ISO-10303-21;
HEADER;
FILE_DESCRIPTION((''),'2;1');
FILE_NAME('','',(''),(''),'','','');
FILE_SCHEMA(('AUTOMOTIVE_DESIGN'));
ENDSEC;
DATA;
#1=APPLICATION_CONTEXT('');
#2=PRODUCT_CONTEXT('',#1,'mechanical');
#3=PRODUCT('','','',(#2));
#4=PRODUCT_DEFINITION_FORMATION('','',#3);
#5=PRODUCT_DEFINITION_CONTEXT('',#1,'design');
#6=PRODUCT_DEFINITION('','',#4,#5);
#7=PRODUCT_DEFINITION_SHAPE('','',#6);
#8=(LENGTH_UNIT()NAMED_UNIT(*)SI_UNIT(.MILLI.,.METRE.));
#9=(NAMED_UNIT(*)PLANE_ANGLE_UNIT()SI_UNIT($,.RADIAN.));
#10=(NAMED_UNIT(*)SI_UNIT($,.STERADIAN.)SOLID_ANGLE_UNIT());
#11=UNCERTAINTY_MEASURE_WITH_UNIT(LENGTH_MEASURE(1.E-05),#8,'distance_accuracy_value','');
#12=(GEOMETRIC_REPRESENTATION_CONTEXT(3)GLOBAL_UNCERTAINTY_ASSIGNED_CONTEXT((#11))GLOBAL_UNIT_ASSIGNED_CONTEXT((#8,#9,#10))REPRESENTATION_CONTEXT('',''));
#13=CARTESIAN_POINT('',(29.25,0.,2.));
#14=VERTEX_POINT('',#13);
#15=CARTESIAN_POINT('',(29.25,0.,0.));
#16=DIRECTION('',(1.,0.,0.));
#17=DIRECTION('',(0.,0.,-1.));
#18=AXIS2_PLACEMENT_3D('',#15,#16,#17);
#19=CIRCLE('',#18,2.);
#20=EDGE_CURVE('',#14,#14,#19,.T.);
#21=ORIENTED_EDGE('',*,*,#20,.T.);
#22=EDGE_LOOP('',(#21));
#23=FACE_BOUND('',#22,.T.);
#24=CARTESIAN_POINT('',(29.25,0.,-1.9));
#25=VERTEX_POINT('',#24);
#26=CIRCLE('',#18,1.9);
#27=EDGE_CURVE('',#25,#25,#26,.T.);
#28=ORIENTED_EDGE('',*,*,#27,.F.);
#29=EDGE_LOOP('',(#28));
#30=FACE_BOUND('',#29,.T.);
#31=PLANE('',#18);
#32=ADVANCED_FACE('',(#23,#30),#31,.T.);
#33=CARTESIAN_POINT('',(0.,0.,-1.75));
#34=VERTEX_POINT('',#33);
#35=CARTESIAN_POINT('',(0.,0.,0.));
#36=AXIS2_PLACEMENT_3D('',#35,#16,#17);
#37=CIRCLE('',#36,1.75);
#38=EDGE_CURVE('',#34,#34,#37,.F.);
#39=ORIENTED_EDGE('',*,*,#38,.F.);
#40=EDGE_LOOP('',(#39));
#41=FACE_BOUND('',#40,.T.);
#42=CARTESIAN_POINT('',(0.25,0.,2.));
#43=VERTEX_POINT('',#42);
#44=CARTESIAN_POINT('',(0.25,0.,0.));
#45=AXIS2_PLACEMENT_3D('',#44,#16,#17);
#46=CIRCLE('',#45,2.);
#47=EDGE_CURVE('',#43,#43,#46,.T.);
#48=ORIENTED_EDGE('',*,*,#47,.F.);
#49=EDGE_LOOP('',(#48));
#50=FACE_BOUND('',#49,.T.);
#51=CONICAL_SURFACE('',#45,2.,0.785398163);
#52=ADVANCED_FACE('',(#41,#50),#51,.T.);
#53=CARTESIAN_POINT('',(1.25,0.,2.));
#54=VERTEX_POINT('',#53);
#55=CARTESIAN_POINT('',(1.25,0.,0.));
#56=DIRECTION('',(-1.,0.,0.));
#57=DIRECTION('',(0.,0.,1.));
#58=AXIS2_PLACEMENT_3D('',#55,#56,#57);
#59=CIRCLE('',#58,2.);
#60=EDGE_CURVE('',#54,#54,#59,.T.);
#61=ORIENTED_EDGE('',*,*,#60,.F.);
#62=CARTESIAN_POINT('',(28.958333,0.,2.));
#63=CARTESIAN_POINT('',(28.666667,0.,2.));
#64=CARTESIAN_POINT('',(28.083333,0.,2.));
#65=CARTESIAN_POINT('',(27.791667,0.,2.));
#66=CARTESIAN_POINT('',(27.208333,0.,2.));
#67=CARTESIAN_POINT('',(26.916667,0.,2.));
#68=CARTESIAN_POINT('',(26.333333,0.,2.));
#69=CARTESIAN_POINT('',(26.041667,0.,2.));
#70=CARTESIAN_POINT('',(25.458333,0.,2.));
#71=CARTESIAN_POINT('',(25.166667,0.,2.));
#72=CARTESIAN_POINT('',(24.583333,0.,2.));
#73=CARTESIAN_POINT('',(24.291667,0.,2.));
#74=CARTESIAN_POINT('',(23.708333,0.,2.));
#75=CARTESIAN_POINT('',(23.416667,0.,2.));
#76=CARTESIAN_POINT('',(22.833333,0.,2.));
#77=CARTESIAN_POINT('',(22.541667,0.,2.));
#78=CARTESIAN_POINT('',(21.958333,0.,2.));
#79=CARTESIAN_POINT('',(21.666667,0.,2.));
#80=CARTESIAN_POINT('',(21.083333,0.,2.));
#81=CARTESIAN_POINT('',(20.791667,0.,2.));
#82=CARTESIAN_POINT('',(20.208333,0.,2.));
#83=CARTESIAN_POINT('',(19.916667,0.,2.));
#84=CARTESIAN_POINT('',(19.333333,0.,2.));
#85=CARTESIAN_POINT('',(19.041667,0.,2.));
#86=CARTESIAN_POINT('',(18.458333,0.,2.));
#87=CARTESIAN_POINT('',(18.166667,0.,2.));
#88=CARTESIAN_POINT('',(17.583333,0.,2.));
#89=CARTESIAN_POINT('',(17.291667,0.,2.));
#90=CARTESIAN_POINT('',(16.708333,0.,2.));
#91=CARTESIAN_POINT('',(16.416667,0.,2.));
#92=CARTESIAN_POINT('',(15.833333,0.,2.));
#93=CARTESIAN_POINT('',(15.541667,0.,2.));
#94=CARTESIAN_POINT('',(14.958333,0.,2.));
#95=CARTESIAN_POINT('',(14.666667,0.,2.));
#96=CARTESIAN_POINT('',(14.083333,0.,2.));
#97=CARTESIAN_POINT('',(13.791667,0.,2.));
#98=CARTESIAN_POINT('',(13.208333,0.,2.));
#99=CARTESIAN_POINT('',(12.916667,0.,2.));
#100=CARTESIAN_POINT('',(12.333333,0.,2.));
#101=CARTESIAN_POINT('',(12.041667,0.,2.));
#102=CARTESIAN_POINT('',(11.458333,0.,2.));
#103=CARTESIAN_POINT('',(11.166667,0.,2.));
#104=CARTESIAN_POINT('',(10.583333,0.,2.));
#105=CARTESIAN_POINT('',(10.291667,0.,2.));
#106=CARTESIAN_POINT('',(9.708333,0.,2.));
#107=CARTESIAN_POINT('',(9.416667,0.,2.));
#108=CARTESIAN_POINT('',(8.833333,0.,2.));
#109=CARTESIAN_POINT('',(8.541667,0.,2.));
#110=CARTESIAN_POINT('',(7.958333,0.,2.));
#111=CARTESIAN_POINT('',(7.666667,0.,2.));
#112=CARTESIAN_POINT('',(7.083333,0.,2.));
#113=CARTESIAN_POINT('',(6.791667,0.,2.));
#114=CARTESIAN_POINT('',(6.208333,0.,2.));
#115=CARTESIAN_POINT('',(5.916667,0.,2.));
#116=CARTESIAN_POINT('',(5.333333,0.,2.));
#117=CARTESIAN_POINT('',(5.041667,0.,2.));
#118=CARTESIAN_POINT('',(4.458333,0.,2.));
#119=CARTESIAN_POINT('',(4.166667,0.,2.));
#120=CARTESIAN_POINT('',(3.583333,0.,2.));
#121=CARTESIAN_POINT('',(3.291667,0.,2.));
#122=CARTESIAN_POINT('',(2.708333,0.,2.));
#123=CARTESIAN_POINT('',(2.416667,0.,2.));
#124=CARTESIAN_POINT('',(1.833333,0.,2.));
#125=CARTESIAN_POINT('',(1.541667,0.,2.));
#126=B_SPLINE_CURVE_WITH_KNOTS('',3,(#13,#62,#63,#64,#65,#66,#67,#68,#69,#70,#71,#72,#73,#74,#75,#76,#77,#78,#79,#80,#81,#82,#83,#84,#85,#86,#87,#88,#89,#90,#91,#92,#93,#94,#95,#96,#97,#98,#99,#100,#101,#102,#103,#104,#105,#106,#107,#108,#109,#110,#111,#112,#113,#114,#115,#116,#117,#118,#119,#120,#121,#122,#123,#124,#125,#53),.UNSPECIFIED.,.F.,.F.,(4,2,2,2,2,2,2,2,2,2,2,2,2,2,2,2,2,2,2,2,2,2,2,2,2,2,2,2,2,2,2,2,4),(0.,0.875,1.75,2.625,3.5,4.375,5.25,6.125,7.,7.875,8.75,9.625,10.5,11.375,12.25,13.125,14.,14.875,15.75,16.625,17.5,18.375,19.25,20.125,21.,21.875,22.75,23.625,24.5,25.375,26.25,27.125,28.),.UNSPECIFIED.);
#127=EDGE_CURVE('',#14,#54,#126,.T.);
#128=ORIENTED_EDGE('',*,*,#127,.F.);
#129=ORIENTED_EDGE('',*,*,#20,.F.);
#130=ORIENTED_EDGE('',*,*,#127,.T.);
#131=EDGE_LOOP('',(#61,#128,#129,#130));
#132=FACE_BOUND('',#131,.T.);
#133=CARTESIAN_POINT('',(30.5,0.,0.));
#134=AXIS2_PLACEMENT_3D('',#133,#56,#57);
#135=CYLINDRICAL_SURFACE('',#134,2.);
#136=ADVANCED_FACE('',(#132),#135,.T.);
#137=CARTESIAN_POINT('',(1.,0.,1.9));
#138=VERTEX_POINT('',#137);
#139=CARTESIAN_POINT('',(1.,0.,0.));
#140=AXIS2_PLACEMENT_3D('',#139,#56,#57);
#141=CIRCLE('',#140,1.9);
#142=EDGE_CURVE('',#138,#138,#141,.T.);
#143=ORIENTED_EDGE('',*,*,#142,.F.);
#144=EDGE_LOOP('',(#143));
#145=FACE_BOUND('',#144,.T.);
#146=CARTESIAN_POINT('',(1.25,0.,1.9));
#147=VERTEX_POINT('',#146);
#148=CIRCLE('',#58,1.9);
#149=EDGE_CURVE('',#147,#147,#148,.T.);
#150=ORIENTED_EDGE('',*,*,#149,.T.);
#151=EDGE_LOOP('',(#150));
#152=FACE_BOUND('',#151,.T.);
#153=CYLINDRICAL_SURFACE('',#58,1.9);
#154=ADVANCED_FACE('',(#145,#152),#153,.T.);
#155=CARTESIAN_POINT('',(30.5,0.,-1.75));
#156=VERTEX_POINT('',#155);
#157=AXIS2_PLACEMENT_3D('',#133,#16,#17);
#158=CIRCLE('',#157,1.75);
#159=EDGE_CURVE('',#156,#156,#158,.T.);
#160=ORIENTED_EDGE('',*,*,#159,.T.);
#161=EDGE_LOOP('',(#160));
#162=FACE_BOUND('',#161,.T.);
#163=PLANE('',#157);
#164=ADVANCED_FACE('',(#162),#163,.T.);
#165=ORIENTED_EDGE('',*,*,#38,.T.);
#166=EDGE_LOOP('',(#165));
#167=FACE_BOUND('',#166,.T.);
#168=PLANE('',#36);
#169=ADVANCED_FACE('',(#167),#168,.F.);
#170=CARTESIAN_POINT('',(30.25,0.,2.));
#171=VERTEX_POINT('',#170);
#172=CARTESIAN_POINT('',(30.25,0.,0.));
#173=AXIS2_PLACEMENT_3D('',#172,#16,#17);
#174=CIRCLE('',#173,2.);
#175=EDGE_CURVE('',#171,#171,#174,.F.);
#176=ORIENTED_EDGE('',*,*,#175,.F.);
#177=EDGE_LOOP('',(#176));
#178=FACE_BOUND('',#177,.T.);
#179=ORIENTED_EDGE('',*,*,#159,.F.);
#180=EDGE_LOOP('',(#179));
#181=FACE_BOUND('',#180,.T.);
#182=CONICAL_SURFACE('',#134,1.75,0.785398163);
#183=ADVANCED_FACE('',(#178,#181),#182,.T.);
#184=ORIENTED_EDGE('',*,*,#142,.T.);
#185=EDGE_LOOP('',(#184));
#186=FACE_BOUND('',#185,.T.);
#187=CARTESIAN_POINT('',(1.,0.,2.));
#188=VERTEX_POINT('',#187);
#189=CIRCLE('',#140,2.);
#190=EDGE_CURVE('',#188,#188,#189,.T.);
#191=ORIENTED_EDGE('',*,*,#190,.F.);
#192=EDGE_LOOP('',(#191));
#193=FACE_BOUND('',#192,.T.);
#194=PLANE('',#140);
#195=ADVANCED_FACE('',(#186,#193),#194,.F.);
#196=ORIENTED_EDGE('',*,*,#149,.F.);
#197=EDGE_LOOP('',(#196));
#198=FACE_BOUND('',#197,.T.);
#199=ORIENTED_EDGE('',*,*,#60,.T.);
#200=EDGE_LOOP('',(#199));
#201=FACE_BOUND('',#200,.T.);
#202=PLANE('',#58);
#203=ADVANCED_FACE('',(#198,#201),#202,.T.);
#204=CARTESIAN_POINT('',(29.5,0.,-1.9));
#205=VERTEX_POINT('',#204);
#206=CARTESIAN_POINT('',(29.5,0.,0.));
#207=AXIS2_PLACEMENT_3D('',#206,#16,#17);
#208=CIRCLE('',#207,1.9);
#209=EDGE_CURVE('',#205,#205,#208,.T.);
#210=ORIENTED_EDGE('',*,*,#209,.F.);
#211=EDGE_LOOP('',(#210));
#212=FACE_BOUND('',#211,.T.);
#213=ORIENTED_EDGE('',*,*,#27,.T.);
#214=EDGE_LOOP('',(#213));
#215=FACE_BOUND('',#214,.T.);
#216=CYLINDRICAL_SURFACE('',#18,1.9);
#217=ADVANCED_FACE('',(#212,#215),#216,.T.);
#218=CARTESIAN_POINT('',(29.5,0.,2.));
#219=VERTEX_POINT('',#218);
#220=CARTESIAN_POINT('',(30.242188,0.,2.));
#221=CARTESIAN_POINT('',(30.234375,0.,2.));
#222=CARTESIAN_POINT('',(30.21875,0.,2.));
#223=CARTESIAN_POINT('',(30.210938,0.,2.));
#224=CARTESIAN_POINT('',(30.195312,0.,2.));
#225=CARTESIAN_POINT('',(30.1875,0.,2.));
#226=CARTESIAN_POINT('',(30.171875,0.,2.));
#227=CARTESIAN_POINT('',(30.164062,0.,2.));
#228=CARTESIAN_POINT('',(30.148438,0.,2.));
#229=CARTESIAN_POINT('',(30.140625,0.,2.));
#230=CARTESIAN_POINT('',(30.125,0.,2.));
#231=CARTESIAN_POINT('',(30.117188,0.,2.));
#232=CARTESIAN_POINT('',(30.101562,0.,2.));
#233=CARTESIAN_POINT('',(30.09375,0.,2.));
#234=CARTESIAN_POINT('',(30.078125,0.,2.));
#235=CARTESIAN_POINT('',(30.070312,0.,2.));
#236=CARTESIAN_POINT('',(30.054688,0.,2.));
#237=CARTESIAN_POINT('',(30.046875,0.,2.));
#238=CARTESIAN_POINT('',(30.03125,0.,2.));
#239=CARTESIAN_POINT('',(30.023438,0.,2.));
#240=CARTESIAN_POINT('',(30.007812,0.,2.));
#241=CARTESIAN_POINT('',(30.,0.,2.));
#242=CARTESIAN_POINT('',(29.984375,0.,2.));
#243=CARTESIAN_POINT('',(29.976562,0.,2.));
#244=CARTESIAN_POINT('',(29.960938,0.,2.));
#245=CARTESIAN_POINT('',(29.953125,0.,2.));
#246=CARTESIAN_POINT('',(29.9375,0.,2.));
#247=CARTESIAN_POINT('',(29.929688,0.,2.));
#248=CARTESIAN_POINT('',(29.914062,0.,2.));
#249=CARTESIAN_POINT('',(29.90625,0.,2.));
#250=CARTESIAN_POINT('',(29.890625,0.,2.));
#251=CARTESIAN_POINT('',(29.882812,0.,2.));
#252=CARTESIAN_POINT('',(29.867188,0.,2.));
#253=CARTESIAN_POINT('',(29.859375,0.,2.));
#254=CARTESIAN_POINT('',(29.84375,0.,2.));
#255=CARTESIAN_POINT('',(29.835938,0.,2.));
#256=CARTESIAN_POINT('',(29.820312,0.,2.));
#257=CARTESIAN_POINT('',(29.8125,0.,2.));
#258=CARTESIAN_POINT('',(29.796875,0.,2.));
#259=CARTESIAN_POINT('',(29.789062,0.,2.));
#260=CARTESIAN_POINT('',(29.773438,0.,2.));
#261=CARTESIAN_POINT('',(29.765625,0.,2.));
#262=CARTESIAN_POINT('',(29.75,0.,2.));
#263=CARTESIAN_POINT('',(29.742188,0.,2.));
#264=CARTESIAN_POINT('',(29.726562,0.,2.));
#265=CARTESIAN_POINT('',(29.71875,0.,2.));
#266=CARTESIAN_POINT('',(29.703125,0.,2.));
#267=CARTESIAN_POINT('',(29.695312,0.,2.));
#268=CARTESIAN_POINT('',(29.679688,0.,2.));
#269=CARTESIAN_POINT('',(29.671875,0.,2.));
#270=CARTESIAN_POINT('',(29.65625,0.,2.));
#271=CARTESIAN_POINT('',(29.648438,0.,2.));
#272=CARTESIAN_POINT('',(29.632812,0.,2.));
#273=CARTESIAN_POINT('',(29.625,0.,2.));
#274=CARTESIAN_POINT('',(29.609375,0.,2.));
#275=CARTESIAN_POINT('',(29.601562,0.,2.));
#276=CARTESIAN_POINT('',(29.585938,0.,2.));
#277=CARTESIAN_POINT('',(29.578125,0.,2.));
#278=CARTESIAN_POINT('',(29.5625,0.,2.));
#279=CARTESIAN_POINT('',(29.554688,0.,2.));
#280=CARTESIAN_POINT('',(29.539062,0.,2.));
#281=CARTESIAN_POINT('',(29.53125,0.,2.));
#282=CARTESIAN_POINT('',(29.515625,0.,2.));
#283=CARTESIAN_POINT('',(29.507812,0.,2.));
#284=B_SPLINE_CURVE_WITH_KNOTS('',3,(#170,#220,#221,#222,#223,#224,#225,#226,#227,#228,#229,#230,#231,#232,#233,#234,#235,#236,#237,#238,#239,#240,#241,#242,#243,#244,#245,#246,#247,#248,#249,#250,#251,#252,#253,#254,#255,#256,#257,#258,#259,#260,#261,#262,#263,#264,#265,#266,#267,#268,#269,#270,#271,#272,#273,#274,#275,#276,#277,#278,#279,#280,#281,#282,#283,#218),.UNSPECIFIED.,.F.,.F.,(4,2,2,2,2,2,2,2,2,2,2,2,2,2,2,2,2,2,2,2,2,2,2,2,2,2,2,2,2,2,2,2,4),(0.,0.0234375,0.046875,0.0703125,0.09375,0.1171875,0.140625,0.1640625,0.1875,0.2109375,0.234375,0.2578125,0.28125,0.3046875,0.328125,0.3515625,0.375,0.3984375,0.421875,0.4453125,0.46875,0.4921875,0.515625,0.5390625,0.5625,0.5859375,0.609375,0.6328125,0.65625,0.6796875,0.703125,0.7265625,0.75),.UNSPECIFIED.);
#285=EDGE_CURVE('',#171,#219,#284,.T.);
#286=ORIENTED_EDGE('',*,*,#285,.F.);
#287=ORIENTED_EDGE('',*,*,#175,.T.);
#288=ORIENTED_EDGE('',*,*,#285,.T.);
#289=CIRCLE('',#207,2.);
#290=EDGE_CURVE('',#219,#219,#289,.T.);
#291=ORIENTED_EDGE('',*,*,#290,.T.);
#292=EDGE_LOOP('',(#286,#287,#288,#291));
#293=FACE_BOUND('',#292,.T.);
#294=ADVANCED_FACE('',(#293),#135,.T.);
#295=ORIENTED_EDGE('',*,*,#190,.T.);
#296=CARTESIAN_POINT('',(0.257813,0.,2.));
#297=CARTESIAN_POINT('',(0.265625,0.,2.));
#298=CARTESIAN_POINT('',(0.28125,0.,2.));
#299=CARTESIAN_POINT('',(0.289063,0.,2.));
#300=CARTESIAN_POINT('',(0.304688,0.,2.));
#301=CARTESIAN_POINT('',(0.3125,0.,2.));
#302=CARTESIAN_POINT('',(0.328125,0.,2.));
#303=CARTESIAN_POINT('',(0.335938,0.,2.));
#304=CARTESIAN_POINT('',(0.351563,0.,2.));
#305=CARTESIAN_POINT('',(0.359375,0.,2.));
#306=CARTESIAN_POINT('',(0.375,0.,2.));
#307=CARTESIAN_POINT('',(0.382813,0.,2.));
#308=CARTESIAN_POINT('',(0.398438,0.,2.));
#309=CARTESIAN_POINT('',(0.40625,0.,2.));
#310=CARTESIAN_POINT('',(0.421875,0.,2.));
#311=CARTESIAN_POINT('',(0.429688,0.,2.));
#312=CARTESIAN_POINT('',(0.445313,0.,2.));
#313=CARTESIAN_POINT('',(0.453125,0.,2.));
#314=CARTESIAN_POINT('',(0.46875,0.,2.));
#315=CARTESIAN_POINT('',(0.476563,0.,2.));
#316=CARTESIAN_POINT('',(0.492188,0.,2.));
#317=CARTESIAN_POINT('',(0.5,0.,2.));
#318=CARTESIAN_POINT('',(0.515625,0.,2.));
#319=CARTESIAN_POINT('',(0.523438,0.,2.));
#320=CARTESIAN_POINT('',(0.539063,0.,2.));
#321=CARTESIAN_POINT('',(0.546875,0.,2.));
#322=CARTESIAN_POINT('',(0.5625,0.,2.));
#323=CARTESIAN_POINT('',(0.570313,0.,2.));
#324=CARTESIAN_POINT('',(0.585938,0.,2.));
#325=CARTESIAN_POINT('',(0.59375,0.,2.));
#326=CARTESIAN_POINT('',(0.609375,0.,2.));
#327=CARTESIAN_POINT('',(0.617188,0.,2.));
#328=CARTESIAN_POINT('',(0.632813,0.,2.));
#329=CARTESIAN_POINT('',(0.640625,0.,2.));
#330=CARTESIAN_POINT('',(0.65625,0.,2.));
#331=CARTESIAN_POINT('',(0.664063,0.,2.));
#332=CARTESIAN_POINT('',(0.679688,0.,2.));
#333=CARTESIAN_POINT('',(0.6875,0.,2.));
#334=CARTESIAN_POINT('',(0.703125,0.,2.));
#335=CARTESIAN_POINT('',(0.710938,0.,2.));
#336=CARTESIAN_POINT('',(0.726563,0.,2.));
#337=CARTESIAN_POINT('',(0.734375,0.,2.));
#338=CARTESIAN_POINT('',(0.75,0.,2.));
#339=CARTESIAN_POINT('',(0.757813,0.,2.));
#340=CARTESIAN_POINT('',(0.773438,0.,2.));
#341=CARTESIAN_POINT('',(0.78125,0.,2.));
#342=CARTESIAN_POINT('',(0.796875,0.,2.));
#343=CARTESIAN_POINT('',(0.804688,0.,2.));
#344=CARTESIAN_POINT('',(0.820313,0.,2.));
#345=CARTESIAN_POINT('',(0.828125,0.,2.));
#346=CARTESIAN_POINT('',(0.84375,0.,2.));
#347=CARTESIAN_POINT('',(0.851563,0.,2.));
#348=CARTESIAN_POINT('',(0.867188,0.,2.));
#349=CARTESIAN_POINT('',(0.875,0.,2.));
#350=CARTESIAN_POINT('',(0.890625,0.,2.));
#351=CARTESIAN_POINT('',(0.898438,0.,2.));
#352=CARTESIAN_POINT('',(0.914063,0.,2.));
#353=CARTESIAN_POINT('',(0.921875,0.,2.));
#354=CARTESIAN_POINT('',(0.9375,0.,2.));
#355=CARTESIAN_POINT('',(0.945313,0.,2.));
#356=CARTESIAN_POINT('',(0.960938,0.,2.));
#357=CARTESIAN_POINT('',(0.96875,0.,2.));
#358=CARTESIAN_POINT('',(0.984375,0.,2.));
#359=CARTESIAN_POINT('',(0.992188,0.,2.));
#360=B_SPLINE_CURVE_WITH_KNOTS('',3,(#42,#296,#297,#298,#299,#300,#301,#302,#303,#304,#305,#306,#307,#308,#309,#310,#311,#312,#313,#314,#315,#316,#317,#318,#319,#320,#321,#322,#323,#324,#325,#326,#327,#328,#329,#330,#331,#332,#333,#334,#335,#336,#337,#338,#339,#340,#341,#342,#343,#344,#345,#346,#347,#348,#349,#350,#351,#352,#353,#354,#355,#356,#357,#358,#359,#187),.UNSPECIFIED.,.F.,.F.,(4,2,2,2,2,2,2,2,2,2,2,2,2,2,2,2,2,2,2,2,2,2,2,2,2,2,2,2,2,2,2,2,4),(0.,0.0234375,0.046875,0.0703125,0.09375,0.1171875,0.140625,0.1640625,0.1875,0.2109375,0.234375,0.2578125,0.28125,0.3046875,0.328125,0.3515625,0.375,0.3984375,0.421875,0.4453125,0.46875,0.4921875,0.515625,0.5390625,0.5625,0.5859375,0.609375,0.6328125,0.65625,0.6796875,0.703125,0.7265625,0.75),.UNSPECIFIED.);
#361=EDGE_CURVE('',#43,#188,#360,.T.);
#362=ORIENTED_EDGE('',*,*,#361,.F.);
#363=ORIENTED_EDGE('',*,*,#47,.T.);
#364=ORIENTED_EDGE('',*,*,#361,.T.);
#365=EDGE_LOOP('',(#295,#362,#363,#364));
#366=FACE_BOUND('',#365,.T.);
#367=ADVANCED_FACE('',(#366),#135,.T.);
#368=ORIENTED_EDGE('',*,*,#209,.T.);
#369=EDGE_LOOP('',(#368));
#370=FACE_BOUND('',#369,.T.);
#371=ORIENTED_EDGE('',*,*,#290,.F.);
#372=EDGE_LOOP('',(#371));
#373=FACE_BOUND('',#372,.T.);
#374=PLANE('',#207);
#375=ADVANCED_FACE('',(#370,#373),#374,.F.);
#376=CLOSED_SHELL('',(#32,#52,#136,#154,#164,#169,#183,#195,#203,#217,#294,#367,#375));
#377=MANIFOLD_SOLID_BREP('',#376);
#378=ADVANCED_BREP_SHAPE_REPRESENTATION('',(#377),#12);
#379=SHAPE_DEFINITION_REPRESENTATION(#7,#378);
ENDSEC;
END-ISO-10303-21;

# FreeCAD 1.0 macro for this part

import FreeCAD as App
import Part
import Sketcher

V = App.Vector


def edges_at(feature, points):
    """Names of the edges that pass closest to the given points."""
    edges = feature.Shape.Edges
    near = lambda p: min(range(len(edges)), key=lambda i: edges[i].distToShape(Part.Vertex(*p))[0])
    return sorted({f"Edge{near(p) + 1}" for p in points})

doc = App.newDocument("Part")
body = doc.addObject("PartDesign::Body", "Body")

sketch1 = body.newObject("Sketcher::SketchObject", "Sketch")
sketch1.AttachmentSupport = (doc.getObject("YZ_Plane"), [""])
sketch1.MapMode = "FlatFace"
sketch1.addGeometry(Part.Circle(V(0, 0, 0), V(0, 0, 1), 2), False)
sketch1.addConstraint([
    Sketcher.Constraint("Coincident", 0, 3, -1, 1),
    Sketcher.Constraint("Diameter", 0, 4.0),
])
pad1 = body.newObject("PartDesign::Pad", "Pad")
pad1.Profile = sketch1
pad1.Length = 30.5

sketch2 = body.newObject("Sketcher::SketchObject", "Sketch001")
sketch2.AttachmentSupport = (doc.getObject("YZ_Plane"), [""])
sketch2.MapMode = "FlatFace"
sketch2.AttachmentOffset = App.Placement(V(0, 0, 29.5), App.Rotation())
sketch2.addGeometry([
    Part.Circle(V(0, 0, 0), V(0, 0, 1), 2.498108),
    Part.Circle(V(0, 0, 0), V(0, 0, 1), 1.9),
], False)
sketch2.addConstraint([
    Sketcher.Constraint("Coincident", 0, 3, -1, 1),
    Sketcher.Constraint("Coincident", 1, 3, -1, 1),
    Sketcher.Constraint("Diameter", 1, 3.8),
    Sketcher.Constraint("Diameter", 0, 4.996217),
])
pocket1 = body.newObject("PartDesign::Pocket", "Pocket")
pocket1.Profile = sketch2
pocket1.Length = 0.25

sketch3 = body.newObject("Sketcher::SketchObject", "Sketch002")
sketch3.AttachmentSupport = (doc.getObject("YZ_Plane"), [""])
sketch3.MapMode = "FlatFace"
sketch3.AttachmentOffset = App.Placement(V(0, 0, 1.25), App.Rotation())
sketch3.addGeometry([
    Part.Circle(V(0, 0, 0), V(0, 0, 1), 2.5),
    Part.Circle(V(0, 0, 0), V(0, 0, 1), 1.9),
], False)
sketch3.addConstraint([
    Sketcher.Constraint("Coincident", 0, 3, -1, 1),
    Sketcher.Constraint("Coincident", 1, 3, -1, 1),
    Sketcher.Constraint("Diameter", 0, 5.0),
    Sketcher.Constraint("Diameter", 1, 3.8),
])
pocket2 = body.newObject("PartDesign::Pocket", "Pocket001")
pocket2.Profile = sketch3
pocket2.Length = 0.25
doc.recompute()

chamfer = body.newObject("PartDesign::Chamfer", "Chamfer")
chamfer.Base = (pocket2, edges_at(pocket2, [(0, 0, -2), (30.5, 0, -2)]))
chamfer.Size = 0.25

doc.recompute()
